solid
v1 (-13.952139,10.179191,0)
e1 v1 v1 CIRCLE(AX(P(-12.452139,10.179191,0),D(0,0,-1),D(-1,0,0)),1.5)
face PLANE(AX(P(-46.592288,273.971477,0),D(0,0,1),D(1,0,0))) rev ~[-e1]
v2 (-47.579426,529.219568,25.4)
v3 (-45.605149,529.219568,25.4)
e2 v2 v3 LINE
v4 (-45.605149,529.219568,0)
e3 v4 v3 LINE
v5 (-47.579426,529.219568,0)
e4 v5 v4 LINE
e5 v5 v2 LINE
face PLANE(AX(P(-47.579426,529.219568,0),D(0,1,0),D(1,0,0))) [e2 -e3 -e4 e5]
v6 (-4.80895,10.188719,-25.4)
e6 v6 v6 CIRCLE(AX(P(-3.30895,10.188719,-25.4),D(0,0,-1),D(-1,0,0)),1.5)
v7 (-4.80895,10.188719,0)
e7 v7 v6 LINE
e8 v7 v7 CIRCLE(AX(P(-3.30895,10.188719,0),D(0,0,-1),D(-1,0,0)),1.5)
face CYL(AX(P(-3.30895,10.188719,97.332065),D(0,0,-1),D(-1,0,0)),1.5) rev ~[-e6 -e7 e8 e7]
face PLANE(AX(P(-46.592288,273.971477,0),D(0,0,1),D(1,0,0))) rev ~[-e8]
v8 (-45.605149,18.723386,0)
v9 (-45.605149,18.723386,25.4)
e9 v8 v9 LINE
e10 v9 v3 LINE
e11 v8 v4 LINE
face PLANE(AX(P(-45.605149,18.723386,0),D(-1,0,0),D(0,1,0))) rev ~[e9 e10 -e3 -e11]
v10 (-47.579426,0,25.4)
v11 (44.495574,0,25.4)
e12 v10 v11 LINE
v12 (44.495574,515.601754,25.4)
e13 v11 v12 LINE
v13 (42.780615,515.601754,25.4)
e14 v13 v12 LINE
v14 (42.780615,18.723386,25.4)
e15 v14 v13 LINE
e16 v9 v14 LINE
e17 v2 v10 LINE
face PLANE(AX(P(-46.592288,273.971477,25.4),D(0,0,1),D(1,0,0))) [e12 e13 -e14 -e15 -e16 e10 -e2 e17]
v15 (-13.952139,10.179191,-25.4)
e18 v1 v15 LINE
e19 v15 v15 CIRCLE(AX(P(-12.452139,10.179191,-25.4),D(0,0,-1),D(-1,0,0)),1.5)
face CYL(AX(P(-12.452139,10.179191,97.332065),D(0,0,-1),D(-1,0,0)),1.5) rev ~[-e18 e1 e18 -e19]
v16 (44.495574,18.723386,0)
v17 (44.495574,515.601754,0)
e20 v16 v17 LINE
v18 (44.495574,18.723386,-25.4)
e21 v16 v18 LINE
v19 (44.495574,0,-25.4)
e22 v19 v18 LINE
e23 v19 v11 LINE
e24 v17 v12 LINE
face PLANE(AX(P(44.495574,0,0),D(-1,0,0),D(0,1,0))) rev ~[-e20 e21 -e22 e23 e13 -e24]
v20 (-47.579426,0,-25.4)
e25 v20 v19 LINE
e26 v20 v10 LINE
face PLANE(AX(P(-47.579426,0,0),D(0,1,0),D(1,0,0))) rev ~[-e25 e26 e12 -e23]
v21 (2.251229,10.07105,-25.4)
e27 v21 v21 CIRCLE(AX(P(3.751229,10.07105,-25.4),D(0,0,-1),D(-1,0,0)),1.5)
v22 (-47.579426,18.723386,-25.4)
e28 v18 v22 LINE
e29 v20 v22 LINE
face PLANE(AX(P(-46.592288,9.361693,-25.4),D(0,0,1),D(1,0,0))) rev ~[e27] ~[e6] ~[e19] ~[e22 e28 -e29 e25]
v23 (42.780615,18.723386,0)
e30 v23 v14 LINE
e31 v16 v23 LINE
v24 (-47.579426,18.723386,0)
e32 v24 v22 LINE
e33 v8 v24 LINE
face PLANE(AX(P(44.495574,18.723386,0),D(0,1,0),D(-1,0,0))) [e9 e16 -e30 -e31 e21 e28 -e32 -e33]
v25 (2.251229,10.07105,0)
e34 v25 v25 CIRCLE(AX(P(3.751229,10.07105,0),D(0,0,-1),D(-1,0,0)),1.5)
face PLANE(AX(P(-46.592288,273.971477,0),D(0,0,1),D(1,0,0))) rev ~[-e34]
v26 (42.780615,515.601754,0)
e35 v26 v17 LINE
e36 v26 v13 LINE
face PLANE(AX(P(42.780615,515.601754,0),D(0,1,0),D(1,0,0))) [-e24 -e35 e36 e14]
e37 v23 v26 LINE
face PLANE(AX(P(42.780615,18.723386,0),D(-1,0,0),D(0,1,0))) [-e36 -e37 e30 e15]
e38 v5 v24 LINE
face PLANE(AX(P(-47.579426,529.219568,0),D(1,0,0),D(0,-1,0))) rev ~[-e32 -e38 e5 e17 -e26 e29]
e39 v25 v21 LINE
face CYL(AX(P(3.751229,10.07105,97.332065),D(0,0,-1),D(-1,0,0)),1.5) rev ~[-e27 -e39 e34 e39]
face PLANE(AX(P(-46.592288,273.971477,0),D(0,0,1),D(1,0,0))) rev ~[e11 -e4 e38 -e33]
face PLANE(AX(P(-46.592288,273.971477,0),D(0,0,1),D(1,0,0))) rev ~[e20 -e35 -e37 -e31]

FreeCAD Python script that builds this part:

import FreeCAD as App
import Part
import Sketcher

V = App.Vector
Q = App.Units.Quantity

doc = App.newDocument("Part")
body = doc.addObject("PartDesign::Body", "Body")

# Sketch on XY plane
sketch1 = doc.addObject("Sketcher::SketchObject", "Sketch")
body.addObject(sketch1)
sketch1.AttachmentSupport = (doc.XY_Plane, [""])
sketch1.MapMode = "FlatFace"
sketch1.addGeometry(Part.LineSegment(V(-48, 19, 0), V(-48, 0, 0)), False)
sketch1.addGeometry(Part.LineSegment(V(-48, 0, 0), V(44, 0, 0)), False)
sketch1.addGeometry(Part.LineSegment(V(44, 0, 0), V(44, 19, 0)), False)
sketch1.addGeometry(Part.LineSegment(V(44, 19, 0), V(-48, 19, 0)), False)
sketch1.addConstraint(Sketcher.Constraint("Coincident", 0, 2, 1, 1))
sketch1.addConstraint(Sketcher.Constraint("Coincident", 1, 2, 2, 1))
sketch1.addConstraint(Sketcher.Constraint("Coincident", 2, 2, 3, 1))
sketch1.addConstraint(Sketcher.Constraint("Coincident", 3, 2, 0, 1))
sketch1.addConstraint(Sketcher.Constraint("Vertical", 0))
sketch1.addConstraint(Sketcher.Constraint("Horizontal", 1))
sketch1.addConstraint(Sketcher.Constraint("Vertical", 2))
sketch1.addConstraint(Sketcher.Constraint("Horizontal", 3))
sketch1.addConstraint(Sketcher.Constraint("PointOnObject", 0, 2, -1))
sketch1.addConstraint(Sketcher.Constraint("DistanceX", 1, 1, 1, 2, Q("3.625 in")))
sketch1.addConstraint(Sketcher.Constraint("DistanceY", 0, 2, 0, 1, 18.723386))
sketch1.addConstraint(Sketcher.Constraint("DistanceX", 0, 2, -1, 1, 47.579426))
pad1 = doc.addObject("PartDesign::Pad", "Pad")
body.addObject(pad1)
pad1.Profile = sketch1
pad1.Length = Q("1 in")
pad1.Reversed = True

# Sketch on XY plane
sketch2 = doc.addObject("Sketcher::SketchObject", "Sketch001")
body.addObject(sketch2)
sketch2.AttachmentSupport = (doc.XY_Plane, [""])
sketch2.MapMode = "FlatFace"
sketch2.addGeometry(Part.Circle(V(3.8, 10.1, 0), V(0, 0, 1), 1.5), False)
sketch2.addGeometry(Part.Circle(V(-3.3, 10.2, 0), V(0, 0, 1), 1.5), False)
sketch2.addGeometry(Part.Circle(V(-12.5, 10.2, 0), V(0, 0, 1), 1.5), False)
sketch2.addConstraint(Sketcher.Constraint("Equal", 0, 1))
sketch2.addConstraint(Sketcher.Constraint("Equal", 1, 2))
sketch2.addConstraint(Sketcher.Constraint("Diameter", 0, 3.0))
sketch2.addConstraint(Sketcher.Constraint("DistanceX", -1, 1, 0, 3, 3.751229))
sketch2.addConstraint(Sketcher.Constraint("DistanceY", -1, 1, 0, 3, 10.07105))
sketch2.addConstraint(Sketcher.Constraint("DistanceX", 1, 3, -1, 1, 3.30895))
sketch2.addConstraint(Sketcher.Constraint("DistanceY", -1, 1, 1, 3, 10.188719))
sketch2.addConstraint(Sketcher.Constraint("DistanceX", 2, 3, -1, 1, 12.452139))
sketch2.addConstraint(Sketcher.Constraint("DistanceY", -1, 1, 2, 3, 10.179191))
doc.recompute()
hole = doc.addObject("PartDesign::Hole", "Hole")
body.addObject(hole)
hole.Profile = sketch2
hole.ThreadType = "None"
hole.Diameter = 3
hole.DepthType = "ThroughAll"

# Sketch on XY plane
sketch3 = doc.addObject("Sketcher::SketchObject", "Sketch002")
body.addObject(sketch3)
sketch3.AttachmentSupport = (doc.XY_Plane, [""])
sketch3.MapMode = "FlatFace"
sketch3.addGeometry(Part.LineSegment(V(-47.6, 529.2, 0), V(-47.6, 0, 0)), False)
sketch3.addGeometry(Part.LineSegment(V(-47.6, 0, 0), V(44.5, 0, 0)), False)
sketch3.addGeometry(Part.LineSegment(V(44.5, 0, 0), V(44.5, 515.6, 0)), False)
sketch3.addGeometry(Part.LineSegment(V(44.5, 515.6, 0), V(42.8, 515.6, 0)), False)
sketch3.addGeometry(Part.LineSegment(V(42.8, 515.6, 0), V(42.8, 18.7, 0)), False)
sketch3.addGeometry(Part.LineSegment(V(42.8, 18.7, 0), V(-45.6, 18.7, 0)), False)
sketch3.addGeometry(Part.LineSegment(V(-45.6, 18.7, 0), V(-45.6, 529.2, 0)), False)
sketch3.addGeometry(Part.LineSegment(V(-45.6, 529.2, 0), V(-47.6, 529.2, 0)), False)
sketch3.addConstraint(Sketcher.Constraint("Coincident", 0, 2, 1, 1))
sketch3.addConstraint(Sketcher.Constraint("Coincident", 1, 2, 2, 1))
sketch3.addConstraint(Sketcher.Constraint("Coincident", 2, 2, 3, 1))
sketch3.addConstraint(Sketcher.Constraint("Coincident", 3, 2, 4, 1))
sketch3.addConstraint(Sketcher.Constraint("Coincident", 4, 2, 5, 1))
sketch3.addConstraint(Sketcher.Constraint("Coincident", 5, 2, 6, 1))
sketch3.addConstraint(Sketcher.Constraint("Coincident", 6, 2, 7, 1))
sketch3.addConstraint(Sketcher.Constraint("Coincident", 7, 2, 0, 1))
sketch3.addConstraint(Sketcher.Constraint("Vertical", 0))
sketch3.addConstraint(Sketcher.Constraint("Horizontal", 1))
sketch3.addConstraint(Sketcher.Constraint("Vertical", 2))
sketch3.addConstraint(Sketcher.Constraint("Horizontal", 3))
sketch3.addConstraint(Sketcher.Constraint("Vertical", 4))
sketch3.addConstraint(Sketcher.Constraint("Horizontal", 5))
sketch3.addConstraint(Sketcher.Constraint("Vertical", 6))
sketch3.addConstraint(Sketcher.Constraint("Horizontal", 7))
sketch3.addConstraint(Sketcher.Constraint("PointOnObject", 0, 2, -1))
sketch3.addConstraint(Sketcher.Constraint("DistanceX", 1, 1, 1, 2, Q("3.625 in")))
sketch3.addConstraint(Sketcher.Constraint("DistanceX", 3, 2, 3, 1, 1.714958))
sketch3.addConstraint(Sketcher.Constraint("DistanceY", 4, 2, 4, 1, 496.878369))
sketch3.addConstraint(Sketcher.Constraint("DistanceX", 5, 2, 5, 1, 88.385765))
sketch3.addConstraint(Sketcher.Constraint("DistanceY", 0, 2, 0, 1, 529.219568))
sketch3.addConstraint(Sketcher.Constraint("DistanceY", 2, 1, 2, 2, 515.601754))
sketch3.addConstraint(Sketcher.Constraint("DistanceX", 5, 2, -1, 1, 45.605149))
pad2 = doc.addObject("PartDesign::Pad", "Pad001")
body.addObject(pad2)
pad2.Profile = sketch3
pad2.Length = Q("1 in")

doc.recompute()
